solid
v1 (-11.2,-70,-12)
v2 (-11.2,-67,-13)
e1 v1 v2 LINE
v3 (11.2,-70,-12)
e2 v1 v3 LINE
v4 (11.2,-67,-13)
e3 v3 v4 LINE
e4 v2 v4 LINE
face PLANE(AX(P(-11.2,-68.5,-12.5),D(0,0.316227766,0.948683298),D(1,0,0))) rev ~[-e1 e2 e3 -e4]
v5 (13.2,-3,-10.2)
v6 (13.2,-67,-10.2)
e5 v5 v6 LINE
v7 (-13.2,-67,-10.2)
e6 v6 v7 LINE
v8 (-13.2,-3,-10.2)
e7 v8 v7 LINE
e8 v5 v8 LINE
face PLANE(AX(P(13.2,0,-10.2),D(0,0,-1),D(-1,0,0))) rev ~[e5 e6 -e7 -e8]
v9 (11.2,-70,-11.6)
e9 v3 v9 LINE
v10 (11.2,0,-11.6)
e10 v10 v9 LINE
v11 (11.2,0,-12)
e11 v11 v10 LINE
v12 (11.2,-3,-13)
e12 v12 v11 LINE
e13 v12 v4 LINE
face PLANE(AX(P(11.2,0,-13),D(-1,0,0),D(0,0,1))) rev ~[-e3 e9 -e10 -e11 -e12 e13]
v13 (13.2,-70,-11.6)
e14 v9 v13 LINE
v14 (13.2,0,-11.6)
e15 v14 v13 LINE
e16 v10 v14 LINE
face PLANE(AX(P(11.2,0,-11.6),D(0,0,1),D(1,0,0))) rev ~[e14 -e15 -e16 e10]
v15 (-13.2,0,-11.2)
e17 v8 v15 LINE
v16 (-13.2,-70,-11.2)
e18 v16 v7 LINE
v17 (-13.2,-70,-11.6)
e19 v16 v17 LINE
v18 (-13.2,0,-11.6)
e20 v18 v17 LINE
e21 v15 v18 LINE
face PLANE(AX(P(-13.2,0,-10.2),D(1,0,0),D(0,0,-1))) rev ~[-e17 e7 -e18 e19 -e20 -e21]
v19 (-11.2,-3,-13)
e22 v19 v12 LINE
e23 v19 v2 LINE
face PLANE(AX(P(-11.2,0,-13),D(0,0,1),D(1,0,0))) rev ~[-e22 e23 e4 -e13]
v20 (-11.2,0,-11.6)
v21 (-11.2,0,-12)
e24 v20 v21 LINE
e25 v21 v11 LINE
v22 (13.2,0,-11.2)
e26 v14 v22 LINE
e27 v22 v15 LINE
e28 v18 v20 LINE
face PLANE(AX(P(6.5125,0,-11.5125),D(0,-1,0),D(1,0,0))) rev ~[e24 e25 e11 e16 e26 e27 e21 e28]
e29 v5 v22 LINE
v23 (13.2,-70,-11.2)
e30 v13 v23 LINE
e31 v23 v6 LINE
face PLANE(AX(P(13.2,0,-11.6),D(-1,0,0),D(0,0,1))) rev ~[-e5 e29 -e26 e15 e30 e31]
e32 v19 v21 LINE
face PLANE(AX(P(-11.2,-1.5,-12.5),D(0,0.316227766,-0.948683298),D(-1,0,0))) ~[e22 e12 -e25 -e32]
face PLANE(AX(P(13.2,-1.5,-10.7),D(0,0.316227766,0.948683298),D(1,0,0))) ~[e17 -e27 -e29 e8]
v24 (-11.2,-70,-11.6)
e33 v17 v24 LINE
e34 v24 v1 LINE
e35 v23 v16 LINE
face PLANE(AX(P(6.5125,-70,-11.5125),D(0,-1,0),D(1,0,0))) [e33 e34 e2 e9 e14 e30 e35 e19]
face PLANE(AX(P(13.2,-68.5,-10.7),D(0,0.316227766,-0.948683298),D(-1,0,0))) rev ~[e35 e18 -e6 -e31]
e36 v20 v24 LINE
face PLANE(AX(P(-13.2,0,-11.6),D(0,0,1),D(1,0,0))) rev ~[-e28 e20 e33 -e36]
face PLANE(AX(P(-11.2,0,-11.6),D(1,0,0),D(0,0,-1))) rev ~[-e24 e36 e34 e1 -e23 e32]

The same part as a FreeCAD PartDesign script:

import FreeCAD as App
import Part
import Sketcher
from FreeCAD import Vector
Q = App.Units.Quantity


def edges_at(feature, points):
    """Names of the edges that pass closest to the given points."""
    edges = feature.Shape.Edges
    near = lambda p: min(range(len(edges)), key=lambda i: edges[i].distToShape(Part.Vertex(*p))[0])
    return sorted({f"Edge{near(p) + 1}" for p in points})


def add_polygon(sketch, points):
    """Adds a closed chain of lines whose ends are joined by coincident constraints."""
    first, n = sketch.GeometryCount, len(points)
    for a, b in zip(points, points[1:] + points[:1]):
        sketch.addGeometry(Part.LineSegment(App.Vector(*a, 0), App.Vector(*b, 0)), False)
    for i in range(n):
        sketch.addConstraint(Sketcher.Constraint("Coincident", first + i, 2, first + (i + 1) % n, 1))

doc = App.newDocument("Part")
body = doc.addObject("PartDesign::Body", "Body")

sketch1 = doc.addObject("Sketcher::SketchObject", "Sketch")
body.addObject(sketch1)
sketch1.AttachmentSupport = (doc.XZ_Plane, [""])
sketch1.MapMode = "FlatFace"
add_polygon(sketch1, [(13.2, -10.2), (-13.2, -10.2), (-13.2, -11.6), (-11.2, -11.6), (-11.2, -13), (11.2, -13), (11.2, -11.6), (13.2, -11.6)])
sketch1.addConstraint(Sketcher.Constraint("Horizontal", 0))
sketch1.addConstraint(Sketcher.Constraint("Vertical", 1))
sketch1.addConstraint(Sketcher.Constraint("Horizontal", 2))
sketch1.addConstraint(Sketcher.Constraint("Vertical", 3))
sketch1.addConstraint(Sketcher.Constraint("Horizontal", 4))
sketch1.addConstraint(Sketcher.Constraint("Vertical", 5))
sketch1.addConstraint(Sketcher.Constraint("Horizontal", 6))
sketch1.addConstraint(Sketcher.Constraint("Vertical", 7))
sketch1.addConstraint(Sketcher.Constraint("Symmetric", 2, 2, 5, 2, -2))
sketch1.addConstraint(Sketcher.Constraint("Equal", 2, 6))
sketch1.addConstraint(Sketcher.Constraint("Equal", 1, 3))
sketch1.addConstraint(Sketcher.Constraint("DistanceX", 2, 1, 2, 2, Q("2 mm")))
sketch1.addConstraint(Sketcher.Constraint("DistanceX", 0, 2, 0, 1, Q("26.4 mm")))
sketch1.addConstraint(Sketcher.Constraint("DistanceY", 1, 2, 1, 1, Q("1.4 mm")))
sketch1.addConstraint(Sketcher.Constraint("DistanceY", 3, 2, -1, 1, Q("13 mm")))
pad1 = doc.addObject("PartDesign::Pad", "Pad")
body.addObject(pad1)
pad1.Profile = sketch1
pad1.Length = 70
doc.recompute()

chamfer = doc.addObject("PartDesign::Chamfer", "Chamfer")
body.addObject(chamfer)
chamfer.Base = (pad1, edges_at(pad1, [(0, -70, -13), (0, -70, -10.2)]))
chamfer.ChamferType = "Two distances"
chamfer.Size = 1
chamfer.Size2 = 3
chamfer.FlipDirection = True
doc.recompute()

chamfer2 = doc.addObject("PartDesign::Chamfer", "Chamfer001")
body.addObject(chamfer2)
chamfer2.Base = (chamfer, edges_at(chamfer, [(0, 0, -10.2)]))
chamfer2.ChamferType = "Two distances"
chamfer2.Size = 3
chamfer2.Size2 = 1
doc.recompute()

chamfer3 = doc.addObject("PartDesign::Chamfer", "Chamfer002")
body.addObject(chamfer3)
chamfer3.Base = (chamfer2, edges_at(chamfer2, [(0, 0, -13)]))
chamfer3.ChamferType = "Two distances"
chamfer3.Size = 3
chamfer3.Size2 = 1
chamfer3.FlipDirection = True

doc.recompute()
